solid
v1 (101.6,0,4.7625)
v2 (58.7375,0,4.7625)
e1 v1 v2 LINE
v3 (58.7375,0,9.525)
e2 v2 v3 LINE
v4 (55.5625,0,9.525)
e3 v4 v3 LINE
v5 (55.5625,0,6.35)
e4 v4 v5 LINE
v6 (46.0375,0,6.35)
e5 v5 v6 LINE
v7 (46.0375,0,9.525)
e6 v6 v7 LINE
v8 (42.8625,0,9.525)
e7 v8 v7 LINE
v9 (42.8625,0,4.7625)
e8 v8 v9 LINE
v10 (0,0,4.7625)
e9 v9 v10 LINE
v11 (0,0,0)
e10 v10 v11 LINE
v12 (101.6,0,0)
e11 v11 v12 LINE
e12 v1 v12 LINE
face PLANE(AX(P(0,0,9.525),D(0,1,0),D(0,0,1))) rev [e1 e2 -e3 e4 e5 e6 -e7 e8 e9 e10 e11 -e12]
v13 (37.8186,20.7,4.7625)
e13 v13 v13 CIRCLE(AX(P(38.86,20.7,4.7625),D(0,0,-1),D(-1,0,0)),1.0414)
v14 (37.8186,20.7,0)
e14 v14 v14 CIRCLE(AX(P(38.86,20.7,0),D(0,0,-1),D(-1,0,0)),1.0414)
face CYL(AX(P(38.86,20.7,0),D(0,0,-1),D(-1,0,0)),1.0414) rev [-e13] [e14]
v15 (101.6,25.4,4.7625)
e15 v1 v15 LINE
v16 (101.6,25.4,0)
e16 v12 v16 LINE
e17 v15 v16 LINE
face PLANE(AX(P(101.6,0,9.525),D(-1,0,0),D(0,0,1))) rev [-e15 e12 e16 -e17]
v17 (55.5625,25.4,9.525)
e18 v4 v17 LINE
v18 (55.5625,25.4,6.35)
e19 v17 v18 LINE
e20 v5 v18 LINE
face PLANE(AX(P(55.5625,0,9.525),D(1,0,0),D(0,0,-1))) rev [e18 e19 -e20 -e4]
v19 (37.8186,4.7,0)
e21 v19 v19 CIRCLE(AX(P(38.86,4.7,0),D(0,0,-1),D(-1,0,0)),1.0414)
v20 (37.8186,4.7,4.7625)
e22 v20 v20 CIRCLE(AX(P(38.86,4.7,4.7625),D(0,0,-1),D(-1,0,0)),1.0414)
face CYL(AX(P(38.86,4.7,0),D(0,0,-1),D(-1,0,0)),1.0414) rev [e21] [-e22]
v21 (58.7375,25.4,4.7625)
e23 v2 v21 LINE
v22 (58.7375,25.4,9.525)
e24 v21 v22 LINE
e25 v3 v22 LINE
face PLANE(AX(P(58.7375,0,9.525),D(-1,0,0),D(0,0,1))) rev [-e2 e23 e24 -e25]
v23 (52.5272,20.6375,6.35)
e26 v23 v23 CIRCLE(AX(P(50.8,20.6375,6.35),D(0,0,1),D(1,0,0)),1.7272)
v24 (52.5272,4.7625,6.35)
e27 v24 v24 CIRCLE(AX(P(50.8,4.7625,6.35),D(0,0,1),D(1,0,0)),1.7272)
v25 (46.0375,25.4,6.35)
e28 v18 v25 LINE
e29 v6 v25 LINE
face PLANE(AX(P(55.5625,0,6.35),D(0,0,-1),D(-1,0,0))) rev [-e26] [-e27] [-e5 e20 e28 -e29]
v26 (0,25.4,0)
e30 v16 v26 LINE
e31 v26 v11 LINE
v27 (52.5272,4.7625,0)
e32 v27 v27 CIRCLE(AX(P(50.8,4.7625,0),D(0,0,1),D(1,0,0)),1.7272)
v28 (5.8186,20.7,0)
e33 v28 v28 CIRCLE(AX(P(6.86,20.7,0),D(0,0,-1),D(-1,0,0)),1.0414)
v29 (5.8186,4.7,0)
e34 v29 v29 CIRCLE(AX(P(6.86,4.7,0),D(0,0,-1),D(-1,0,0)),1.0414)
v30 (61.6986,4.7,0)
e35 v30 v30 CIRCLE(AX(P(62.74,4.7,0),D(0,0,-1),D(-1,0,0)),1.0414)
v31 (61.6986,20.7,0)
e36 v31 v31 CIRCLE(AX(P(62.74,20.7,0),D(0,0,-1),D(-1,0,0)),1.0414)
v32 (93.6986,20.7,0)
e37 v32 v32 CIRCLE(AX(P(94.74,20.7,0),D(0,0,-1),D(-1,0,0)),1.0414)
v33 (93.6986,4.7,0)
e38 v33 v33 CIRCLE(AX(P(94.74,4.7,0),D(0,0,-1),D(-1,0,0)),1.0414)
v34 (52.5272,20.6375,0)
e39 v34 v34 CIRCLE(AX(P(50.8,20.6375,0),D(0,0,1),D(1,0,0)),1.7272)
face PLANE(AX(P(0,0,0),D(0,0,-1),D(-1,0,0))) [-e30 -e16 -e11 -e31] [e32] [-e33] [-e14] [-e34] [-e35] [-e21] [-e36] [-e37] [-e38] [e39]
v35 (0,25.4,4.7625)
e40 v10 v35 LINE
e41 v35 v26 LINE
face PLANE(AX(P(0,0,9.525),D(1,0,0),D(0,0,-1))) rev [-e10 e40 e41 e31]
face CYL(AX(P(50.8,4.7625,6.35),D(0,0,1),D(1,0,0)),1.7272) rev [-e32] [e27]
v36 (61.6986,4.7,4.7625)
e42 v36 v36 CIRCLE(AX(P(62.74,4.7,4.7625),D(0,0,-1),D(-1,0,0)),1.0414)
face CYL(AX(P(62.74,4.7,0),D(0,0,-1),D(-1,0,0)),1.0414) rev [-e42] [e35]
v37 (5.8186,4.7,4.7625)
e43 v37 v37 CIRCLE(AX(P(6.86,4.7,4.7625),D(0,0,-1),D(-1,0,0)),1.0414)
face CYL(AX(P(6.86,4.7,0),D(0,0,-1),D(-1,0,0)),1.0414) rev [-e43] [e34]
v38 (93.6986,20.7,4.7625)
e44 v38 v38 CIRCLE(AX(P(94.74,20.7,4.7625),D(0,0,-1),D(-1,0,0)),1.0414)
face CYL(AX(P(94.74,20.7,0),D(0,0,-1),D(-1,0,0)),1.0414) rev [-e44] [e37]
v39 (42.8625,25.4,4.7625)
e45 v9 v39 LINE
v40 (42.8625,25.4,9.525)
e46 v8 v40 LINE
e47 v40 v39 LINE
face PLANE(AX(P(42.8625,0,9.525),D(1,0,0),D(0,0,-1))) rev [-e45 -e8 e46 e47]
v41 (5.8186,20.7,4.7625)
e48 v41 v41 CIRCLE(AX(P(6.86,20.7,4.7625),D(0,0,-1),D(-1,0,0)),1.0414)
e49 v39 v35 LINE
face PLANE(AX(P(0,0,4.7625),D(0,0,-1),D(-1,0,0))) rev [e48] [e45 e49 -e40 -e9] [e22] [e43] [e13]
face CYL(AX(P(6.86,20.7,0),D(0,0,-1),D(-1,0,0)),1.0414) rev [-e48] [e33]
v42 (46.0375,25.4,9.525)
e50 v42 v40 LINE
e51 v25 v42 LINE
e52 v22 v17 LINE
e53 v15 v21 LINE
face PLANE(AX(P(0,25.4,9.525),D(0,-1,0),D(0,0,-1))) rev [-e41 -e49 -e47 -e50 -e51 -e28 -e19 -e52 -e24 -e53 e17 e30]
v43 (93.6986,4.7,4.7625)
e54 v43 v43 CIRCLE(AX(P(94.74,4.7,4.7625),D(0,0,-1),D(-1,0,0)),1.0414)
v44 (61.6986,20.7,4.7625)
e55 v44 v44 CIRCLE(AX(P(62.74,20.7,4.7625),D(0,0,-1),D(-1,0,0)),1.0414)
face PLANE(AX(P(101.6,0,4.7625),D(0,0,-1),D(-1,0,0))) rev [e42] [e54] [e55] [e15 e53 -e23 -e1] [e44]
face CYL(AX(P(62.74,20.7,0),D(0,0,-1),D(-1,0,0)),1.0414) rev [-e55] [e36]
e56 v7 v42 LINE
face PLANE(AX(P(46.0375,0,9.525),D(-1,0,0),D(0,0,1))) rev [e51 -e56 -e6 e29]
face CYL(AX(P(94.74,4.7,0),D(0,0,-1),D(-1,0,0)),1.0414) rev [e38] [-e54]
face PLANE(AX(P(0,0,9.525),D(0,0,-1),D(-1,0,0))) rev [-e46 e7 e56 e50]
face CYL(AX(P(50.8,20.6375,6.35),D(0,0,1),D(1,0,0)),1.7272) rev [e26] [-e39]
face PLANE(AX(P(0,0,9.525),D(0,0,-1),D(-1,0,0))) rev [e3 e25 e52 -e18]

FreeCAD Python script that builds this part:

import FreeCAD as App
import Part
import Sketcher
Q = App.Units.Quantity

doc = App.newDocument("Part")
body = doc.addObject("PartDesign::Body", "Body")

# Sketch on XY plane
sketch1 = body.newObject("Sketcher::SketchObject", "Sketch")
sketch1.AttachmentSupport = (doc.getObject("XY_Plane"), [""])
sketch1.MapMode = "FlatFace"
sketch1.addGeometry([
    Part.LineSegment(App.Vector(0, 25, 0), App.Vector(0, 0, 0)),
    Part.LineSegment(App.Vector(0, 0, 0), App.Vector(102, 0, 0)),
    Part.LineSegment(App.Vector(102, 0, 0), App.Vector(102, 25, 0)),
    Part.LineSegment(App.Vector(102, 25, 0), App.Vector(0, 25, 0)),
], False)
sketch1.addConstraint([
    Sketcher.Constraint("Coincident", 0, 2, 1, 1),
    Sketcher.Constraint("Coincident", 1, 2, 2, 1),
    Sketcher.Constraint("Coincident", 2, 2, 3, 1),
    Sketcher.Constraint("Coincident", 3, 2, 0, 1),
    Sketcher.Constraint("Vertical", 0),
    Sketcher.Constraint("Horizontal", 1),
    Sketcher.Constraint("Vertical", 2),
    Sketcher.Constraint("Horizontal", 3),
    Sketcher.Constraint("Coincident", 0, 2, -1, 1),
    Sketcher.Constraint("DistanceX", 1, 1, 1, 2, Q("4 in")),
    Sketcher.Constraint("DistanceY", 0, 2, 0, 1, Q("1 in")),
])
pad1 = body.newObject("PartDesign::Pad", "Pad")
pad1.Profile = sketch1
pad1.Length = Q("0.375 in")

# Sketch on XZ plane
sketch2 = body.newObject("Sketcher::SketchObject", "Sketch001")
sketch2.AttachmentSupport = (doc.getObject("XZ_Plane"), [""])
sketch2.MapMode = "FlatFace"
sketch2.AttachmentOffset = App.Placement(App.Vector(0, 0, -1 * 25.4), App.Rotation())
sketch2.addGeometry([
    Part.LineSegment(App.Vector(46, 6.3, 0), App.Vector(46, 9.5, 0)),  # 0
    Part.LineSegment(App.Vector(46, 9.5, 0), App.Vector(55.6, 9.5, 0)),  # 1
    Part.LineSegment(App.Vector(55.6, 9.5, 0), App.Vector(55.6, 6.3, 0)),  # 2
    Part.LineSegment(App.Vector(55.6, 6.3, 0), App.Vector(46, 6.3, 0)),  # 3
    Part.LineSegment(App.Vector(0, 4.8, 0), App.Vector(0, 9.5, 0)),  # 4
    Part.LineSegment(App.Vector(0, 9.5, 0), App.Vector(42.9, 9.5, 0)),  # 5
    Part.LineSegment(App.Vector(42.9, 9.5, 0), App.Vector(42.9, 4.8, 0)),  # 6
    Part.LineSegment(App.Vector(42.9, 4.8, 0), App.Vector(0, 4.8, 0)),  # 7
    Part.LineSegment(App.Vector(58.7, 4.8, 0), App.Vector(58.7, 9.5, 0)),  # 8
    Part.LineSegment(App.Vector(58.7, 9.5, 0), App.Vector(101.6, 9.5, 0)),  # 9
    Part.LineSegment(App.Vector(101.6, 9.5, 0), App.Vector(101.6, 4.8, 0)),  # 10
    Part.LineSegment(App.Vector(101.6, 4.8, 0), App.Vector(58.7, 4.8, 0)),  # 11
], False)
sketch2.addConstraint([
    Sketcher.Constraint("Coincident", 0, 2, 1, 1),
    Sketcher.Constraint("Coincident", 1, 2, 2, 1),
    Sketcher.Constraint("Coincident", 2, 2, 3, 1),
    Sketcher.Constraint("Coincident", 3, 2, 0, 1),
    Sketcher.Constraint("Coincident", 4, 2, 5, 1),
    Sketcher.Constraint("Coincident", 5, 2, 6, 1),
    Sketcher.Constraint("Coincident", 6, 2, 7, 1),
    Sketcher.Constraint("Coincident", 7, 2, 4, 1),
    Sketcher.Constraint("Coincident", 8, 2, 9, 1),
    Sketcher.Constraint("Coincident", 9, 2, 10, 1),
    Sketcher.Constraint("Coincident", 10, 2, 11, 1),
    Sketcher.Constraint("Coincident", 11, 2, 8, 1),
    Sketcher.Constraint("Vertical", 0),
    Sketcher.Constraint("Horizontal", 1),
    Sketcher.Constraint("Vertical", 2),
    Sketcher.Constraint("Horizontal", 3),
    Sketcher.Constraint("Vertical", 4),
    Sketcher.Constraint("Horizontal", 5),
    Sketcher.Constraint("Vertical", 6),
    Sketcher.Constraint("Horizontal", 7),
    Sketcher.Constraint("Vertical", 8),
    Sketcher.Constraint("Horizontal", 9),
    Sketcher.Constraint("Vertical", 10),
    Sketcher.Constraint("Horizontal", 11),
    Sketcher.Constraint("PointOnObject", 4, 2, -2),
    Sketcher.Constraint("Horizontal", 1, 2, 4, 2),
    Sketcher.Constraint("Horizontal", 5, 2, 8, 2),
    Sketcher.Constraint("Horizontal", 7, 2, 10, 2),
    Sketcher.Constraint("Equal", 7, 9),
    Sketcher.Constraint("DistanceX", -1, 1, 9, 2, Q("4 in")),
    Sketcher.Constraint("DistanceX", 5, 2, 1, 2, Q("0.5 in")),
    Sketcher.Constraint("DistanceX", 0, 2, 8, 2, Q("0.5 in")),
    Sketcher.Constraint("DistanceX", 1, 1, 1, 2, Q("0.375 in")),
    Sketcher.Constraint("DistanceY", 0, 1, 0, 2, Q("0.125 in")),
    Sketcher.Constraint("DistanceY", 4, 1, 4, 2, Q("0.1875 in")),
    Sketcher.Constraint("DistanceY", -1, 1, 2, 2, Q("0.25 in")),
])
pocket1 = body.newObject("PartDesign::Pocket", "Pocket")
pocket1.Profile = sketch2
pocket1.Type = "ThroughAll"
pocket1.Reversed = True

# Sketch on XY plane
sketch3 = body.newObject("Sketcher::SketchObject", "Sketch002")
sketch3.AttachmentSupport = (doc.getObject("XY_Plane"), [""])
sketch3.MapMode = "FlatFace"
sketch3.AttachmentOffset = App.Placement(App.Vector(0, 0, 0.25 * 25.4), App.Rotation())
sketch3.addGeometry([
    Part.Circle(App.Vector(50.8, 4.8, 0), App.Vector(0, 0, 1), 1.7),
    Part.Circle(App.Vector(50.8, 20.6, 0), App.Vector(0, 0, 1), 1.7),
], False)
sketch3.addConstraint([
    Sketcher.Constraint("Equal", 0, 1),
    Sketcher.Constraint("Vertical", 0, 3, 1, 3),
    Sketcher.Constraint("Diameter", 0, Q("0.136 in")),
    Sketcher.Constraint("DistanceX", -1, 1, 0, 3, Q("2 in")),
    Sketcher.Constraint("DistanceY", -1, 1, 0, 3, Q("0.1875 in")),
    Sketcher.Constraint("DistanceY", -1, 1, 1, 3, Q("0.8125 in")),
])
doc.recompute()
hole = body.newObject("PartDesign::Hole", "Hole")
hole.Profile = sketch3
hole.ThreadType = "None"
hole.Diameter = Q("0.136 in")
hole.DepthType = "ThroughAll"

# Sketch on XY plane
sketch4 = body.newObject("Sketcher::SketchObject", "Sketch003")
sketch4.AttachmentSupport = (doc.getObject("XY_Plane"), [""])
sketch4.MapMode = "FlatFace"
sketch4.addGeometry([
    Part.Circle(App.Vector(38.9, 20.7, 0), App.Vector(0, 0, 1), 1),  # 0
    Part.Circle(App.Vector(6.9, 20.7, 0), App.Vector(0, 0, 1), 1),  # 1
    Part.Circle(App.Vector(38.9, 4.7, 0), App.Vector(0, 0, 1), 1),  # 2
    Part.Circle(App.Vector(6.9, 4.7, 0), App.Vector(0, 0, 1), 1),  # 3
    Part.Circle(App.Vector(62.7, 4.7, 0), App.Vector(0, 0, 1), 1),  # 4
    Part.Circle(App.Vector(94.7, 4.7, 0), App.Vector(0, 0, 1), 1),  # 5
    Part.Circle(App.Vector(62.7, 20.7, 0), App.Vector(0, 0, 1), 1),  # 6
    Part.Circle(App.Vector(94.7, 20.7, 0), App.Vector(0, 0, 1), 1),  # 7
], False)
sketch4.addConstraint([
    Sketcher.Constraint("Equal", 0, 1),
    Sketcher.Constraint("Equal", 1, 2),
    Sketcher.Constraint("Equal", 2, 3),
    Sketcher.Constraint("Equal", 3, 4),
    Sketcher.Constraint("Equal", 4, 5),
    Sketcher.Constraint("Equal", 5, 6),
    Sketcher.Constraint("Equal", 6, 7),
    Sketcher.Constraint("Horizontal", 0, 3, 1, 3),
    Sketcher.Constraint("Horizontal", 2, 3, 3, 3),
    Sketcher.Constraint("Horizontal", 3, 3, 4, 3),
    Sketcher.Constraint("Horizontal", 4, 3, 5, 3),
    Sketcher.Constraint("Horizontal", 1, 3, 6, 3),
    Sketcher.Constraint("Horizontal", 6, 3, 7, 3),
    Sketcher.Constraint("Vertical", 0, 3, 2, 3),
    Sketcher.Constraint("Vertical", 1, 3, 3, 3),
    Sketcher.Constraint("Vertical", 4, 3, 6, 3),
    Sketcher.Constraint("Vertical", 5, 3, 7, 3),
    Sketcher.Constraint("Diameter", 0, Q("0.082 in")),
    Sketcher.Constraint("DistanceX", 3, 3, 4, 3, Q("2.2 in")),
    Sketcher.Constraint("DistanceX", 2, 3, 5, 3, Q("2.2 in")),
    Sketcher.Constraint("DistanceX", -1, 1, 0, 3, 38.86),
    Sketcher.Constraint("DistanceY", -1, 1, 0, 3, 20.7),
    Sketcher.Constraint("DistanceX", -1, 1, 1, 3, 6.86),
    Sketcher.Constraint("DistanceY", -1, 1, 2, 3, 4.7),
])
doc.recompute()
hole2 = body.newObject("PartDesign::Hole", "Hole001")
hole2.Profile = sketch4
hole2.ThreadType = "None"
hole2.Diameter = Q("0.082 in")
hole2.DepthType = "Dimension"
hole2.Depth = Q("0.38 in")
hole2.DrillPoint = "Angled"
hole2.DrillPointAngle = 118
hole2.Reversed = True

doc.recompute()
